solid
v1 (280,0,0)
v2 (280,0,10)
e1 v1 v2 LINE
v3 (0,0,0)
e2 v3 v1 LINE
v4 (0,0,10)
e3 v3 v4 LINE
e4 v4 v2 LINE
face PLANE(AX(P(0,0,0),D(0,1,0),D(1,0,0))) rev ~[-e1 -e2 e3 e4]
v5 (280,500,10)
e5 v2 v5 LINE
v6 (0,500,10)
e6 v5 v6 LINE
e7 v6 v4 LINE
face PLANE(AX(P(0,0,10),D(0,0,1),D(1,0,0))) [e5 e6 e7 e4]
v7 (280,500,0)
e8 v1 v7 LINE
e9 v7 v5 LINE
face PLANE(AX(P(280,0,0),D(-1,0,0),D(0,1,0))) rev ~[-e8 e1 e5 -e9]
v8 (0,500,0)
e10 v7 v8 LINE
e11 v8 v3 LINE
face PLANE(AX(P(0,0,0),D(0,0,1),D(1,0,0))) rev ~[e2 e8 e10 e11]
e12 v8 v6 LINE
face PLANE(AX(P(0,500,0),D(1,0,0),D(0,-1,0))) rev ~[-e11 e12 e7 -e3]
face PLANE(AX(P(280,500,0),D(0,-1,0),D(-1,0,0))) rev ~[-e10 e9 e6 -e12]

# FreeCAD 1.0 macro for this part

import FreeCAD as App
import Part
import Sketcher
from FreeCAD import Vector


def add_polygon(sketch, points):
    """Adds a closed chain of lines whose ends are joined by coincident constraints."""
    first, n = sketch.GeometryCount, len(points)
    for a, b in zip(points, points[1:] + points[:1]):
        sketch.addGeometry(Part.LineSegment(App.Vector(*a, 0), App.Vector(*b, 0)), False)
    for i in range(n):
        sketch.addConstraint(Sketcher.Constraint("Coincident", first + i, 2, first + (i + 1) % n, 1))

doc = App.newDocument("Part")
body = doc.addObject("PartDesign::Body", "Body")

sketch1 = doc.addObject("Sketcher::SketchObject", "Sketch")
body.addObject(sketch1)
sketch1.AttachmentSupport = (doc.XY_Plane, [""])
sketch1.MapMode = "FlatFace"
add_polygon(sketch1, [(0, 500), (0, 0), (280, 0), (280, 500)])
sketch1.addConstraint([
    Sketcher.Constraint("Vertical", 0),
    Sketcher.Constraint("Horizontal", 1),
    Sketcher.Constraint("Vertical", 2),
    Sketcher.Constraint("Horizontal", 3),
    Sketcher.Constraint("Coincident", 0, 2, -1, 1),
    Sketcher.Constraint("DistanceX", 1, 1, 1, 2, 280.0),
    Sketcher.Constraint("DistanceY", 0, 2, 0, 1, 500.0),
])
pad1 = doc.addObject("PartDesign::Pad", "Pad")
body.addObject(pad1)
pad1.Profile = sketch1
pad1.Length = 10

doc.recompute()
